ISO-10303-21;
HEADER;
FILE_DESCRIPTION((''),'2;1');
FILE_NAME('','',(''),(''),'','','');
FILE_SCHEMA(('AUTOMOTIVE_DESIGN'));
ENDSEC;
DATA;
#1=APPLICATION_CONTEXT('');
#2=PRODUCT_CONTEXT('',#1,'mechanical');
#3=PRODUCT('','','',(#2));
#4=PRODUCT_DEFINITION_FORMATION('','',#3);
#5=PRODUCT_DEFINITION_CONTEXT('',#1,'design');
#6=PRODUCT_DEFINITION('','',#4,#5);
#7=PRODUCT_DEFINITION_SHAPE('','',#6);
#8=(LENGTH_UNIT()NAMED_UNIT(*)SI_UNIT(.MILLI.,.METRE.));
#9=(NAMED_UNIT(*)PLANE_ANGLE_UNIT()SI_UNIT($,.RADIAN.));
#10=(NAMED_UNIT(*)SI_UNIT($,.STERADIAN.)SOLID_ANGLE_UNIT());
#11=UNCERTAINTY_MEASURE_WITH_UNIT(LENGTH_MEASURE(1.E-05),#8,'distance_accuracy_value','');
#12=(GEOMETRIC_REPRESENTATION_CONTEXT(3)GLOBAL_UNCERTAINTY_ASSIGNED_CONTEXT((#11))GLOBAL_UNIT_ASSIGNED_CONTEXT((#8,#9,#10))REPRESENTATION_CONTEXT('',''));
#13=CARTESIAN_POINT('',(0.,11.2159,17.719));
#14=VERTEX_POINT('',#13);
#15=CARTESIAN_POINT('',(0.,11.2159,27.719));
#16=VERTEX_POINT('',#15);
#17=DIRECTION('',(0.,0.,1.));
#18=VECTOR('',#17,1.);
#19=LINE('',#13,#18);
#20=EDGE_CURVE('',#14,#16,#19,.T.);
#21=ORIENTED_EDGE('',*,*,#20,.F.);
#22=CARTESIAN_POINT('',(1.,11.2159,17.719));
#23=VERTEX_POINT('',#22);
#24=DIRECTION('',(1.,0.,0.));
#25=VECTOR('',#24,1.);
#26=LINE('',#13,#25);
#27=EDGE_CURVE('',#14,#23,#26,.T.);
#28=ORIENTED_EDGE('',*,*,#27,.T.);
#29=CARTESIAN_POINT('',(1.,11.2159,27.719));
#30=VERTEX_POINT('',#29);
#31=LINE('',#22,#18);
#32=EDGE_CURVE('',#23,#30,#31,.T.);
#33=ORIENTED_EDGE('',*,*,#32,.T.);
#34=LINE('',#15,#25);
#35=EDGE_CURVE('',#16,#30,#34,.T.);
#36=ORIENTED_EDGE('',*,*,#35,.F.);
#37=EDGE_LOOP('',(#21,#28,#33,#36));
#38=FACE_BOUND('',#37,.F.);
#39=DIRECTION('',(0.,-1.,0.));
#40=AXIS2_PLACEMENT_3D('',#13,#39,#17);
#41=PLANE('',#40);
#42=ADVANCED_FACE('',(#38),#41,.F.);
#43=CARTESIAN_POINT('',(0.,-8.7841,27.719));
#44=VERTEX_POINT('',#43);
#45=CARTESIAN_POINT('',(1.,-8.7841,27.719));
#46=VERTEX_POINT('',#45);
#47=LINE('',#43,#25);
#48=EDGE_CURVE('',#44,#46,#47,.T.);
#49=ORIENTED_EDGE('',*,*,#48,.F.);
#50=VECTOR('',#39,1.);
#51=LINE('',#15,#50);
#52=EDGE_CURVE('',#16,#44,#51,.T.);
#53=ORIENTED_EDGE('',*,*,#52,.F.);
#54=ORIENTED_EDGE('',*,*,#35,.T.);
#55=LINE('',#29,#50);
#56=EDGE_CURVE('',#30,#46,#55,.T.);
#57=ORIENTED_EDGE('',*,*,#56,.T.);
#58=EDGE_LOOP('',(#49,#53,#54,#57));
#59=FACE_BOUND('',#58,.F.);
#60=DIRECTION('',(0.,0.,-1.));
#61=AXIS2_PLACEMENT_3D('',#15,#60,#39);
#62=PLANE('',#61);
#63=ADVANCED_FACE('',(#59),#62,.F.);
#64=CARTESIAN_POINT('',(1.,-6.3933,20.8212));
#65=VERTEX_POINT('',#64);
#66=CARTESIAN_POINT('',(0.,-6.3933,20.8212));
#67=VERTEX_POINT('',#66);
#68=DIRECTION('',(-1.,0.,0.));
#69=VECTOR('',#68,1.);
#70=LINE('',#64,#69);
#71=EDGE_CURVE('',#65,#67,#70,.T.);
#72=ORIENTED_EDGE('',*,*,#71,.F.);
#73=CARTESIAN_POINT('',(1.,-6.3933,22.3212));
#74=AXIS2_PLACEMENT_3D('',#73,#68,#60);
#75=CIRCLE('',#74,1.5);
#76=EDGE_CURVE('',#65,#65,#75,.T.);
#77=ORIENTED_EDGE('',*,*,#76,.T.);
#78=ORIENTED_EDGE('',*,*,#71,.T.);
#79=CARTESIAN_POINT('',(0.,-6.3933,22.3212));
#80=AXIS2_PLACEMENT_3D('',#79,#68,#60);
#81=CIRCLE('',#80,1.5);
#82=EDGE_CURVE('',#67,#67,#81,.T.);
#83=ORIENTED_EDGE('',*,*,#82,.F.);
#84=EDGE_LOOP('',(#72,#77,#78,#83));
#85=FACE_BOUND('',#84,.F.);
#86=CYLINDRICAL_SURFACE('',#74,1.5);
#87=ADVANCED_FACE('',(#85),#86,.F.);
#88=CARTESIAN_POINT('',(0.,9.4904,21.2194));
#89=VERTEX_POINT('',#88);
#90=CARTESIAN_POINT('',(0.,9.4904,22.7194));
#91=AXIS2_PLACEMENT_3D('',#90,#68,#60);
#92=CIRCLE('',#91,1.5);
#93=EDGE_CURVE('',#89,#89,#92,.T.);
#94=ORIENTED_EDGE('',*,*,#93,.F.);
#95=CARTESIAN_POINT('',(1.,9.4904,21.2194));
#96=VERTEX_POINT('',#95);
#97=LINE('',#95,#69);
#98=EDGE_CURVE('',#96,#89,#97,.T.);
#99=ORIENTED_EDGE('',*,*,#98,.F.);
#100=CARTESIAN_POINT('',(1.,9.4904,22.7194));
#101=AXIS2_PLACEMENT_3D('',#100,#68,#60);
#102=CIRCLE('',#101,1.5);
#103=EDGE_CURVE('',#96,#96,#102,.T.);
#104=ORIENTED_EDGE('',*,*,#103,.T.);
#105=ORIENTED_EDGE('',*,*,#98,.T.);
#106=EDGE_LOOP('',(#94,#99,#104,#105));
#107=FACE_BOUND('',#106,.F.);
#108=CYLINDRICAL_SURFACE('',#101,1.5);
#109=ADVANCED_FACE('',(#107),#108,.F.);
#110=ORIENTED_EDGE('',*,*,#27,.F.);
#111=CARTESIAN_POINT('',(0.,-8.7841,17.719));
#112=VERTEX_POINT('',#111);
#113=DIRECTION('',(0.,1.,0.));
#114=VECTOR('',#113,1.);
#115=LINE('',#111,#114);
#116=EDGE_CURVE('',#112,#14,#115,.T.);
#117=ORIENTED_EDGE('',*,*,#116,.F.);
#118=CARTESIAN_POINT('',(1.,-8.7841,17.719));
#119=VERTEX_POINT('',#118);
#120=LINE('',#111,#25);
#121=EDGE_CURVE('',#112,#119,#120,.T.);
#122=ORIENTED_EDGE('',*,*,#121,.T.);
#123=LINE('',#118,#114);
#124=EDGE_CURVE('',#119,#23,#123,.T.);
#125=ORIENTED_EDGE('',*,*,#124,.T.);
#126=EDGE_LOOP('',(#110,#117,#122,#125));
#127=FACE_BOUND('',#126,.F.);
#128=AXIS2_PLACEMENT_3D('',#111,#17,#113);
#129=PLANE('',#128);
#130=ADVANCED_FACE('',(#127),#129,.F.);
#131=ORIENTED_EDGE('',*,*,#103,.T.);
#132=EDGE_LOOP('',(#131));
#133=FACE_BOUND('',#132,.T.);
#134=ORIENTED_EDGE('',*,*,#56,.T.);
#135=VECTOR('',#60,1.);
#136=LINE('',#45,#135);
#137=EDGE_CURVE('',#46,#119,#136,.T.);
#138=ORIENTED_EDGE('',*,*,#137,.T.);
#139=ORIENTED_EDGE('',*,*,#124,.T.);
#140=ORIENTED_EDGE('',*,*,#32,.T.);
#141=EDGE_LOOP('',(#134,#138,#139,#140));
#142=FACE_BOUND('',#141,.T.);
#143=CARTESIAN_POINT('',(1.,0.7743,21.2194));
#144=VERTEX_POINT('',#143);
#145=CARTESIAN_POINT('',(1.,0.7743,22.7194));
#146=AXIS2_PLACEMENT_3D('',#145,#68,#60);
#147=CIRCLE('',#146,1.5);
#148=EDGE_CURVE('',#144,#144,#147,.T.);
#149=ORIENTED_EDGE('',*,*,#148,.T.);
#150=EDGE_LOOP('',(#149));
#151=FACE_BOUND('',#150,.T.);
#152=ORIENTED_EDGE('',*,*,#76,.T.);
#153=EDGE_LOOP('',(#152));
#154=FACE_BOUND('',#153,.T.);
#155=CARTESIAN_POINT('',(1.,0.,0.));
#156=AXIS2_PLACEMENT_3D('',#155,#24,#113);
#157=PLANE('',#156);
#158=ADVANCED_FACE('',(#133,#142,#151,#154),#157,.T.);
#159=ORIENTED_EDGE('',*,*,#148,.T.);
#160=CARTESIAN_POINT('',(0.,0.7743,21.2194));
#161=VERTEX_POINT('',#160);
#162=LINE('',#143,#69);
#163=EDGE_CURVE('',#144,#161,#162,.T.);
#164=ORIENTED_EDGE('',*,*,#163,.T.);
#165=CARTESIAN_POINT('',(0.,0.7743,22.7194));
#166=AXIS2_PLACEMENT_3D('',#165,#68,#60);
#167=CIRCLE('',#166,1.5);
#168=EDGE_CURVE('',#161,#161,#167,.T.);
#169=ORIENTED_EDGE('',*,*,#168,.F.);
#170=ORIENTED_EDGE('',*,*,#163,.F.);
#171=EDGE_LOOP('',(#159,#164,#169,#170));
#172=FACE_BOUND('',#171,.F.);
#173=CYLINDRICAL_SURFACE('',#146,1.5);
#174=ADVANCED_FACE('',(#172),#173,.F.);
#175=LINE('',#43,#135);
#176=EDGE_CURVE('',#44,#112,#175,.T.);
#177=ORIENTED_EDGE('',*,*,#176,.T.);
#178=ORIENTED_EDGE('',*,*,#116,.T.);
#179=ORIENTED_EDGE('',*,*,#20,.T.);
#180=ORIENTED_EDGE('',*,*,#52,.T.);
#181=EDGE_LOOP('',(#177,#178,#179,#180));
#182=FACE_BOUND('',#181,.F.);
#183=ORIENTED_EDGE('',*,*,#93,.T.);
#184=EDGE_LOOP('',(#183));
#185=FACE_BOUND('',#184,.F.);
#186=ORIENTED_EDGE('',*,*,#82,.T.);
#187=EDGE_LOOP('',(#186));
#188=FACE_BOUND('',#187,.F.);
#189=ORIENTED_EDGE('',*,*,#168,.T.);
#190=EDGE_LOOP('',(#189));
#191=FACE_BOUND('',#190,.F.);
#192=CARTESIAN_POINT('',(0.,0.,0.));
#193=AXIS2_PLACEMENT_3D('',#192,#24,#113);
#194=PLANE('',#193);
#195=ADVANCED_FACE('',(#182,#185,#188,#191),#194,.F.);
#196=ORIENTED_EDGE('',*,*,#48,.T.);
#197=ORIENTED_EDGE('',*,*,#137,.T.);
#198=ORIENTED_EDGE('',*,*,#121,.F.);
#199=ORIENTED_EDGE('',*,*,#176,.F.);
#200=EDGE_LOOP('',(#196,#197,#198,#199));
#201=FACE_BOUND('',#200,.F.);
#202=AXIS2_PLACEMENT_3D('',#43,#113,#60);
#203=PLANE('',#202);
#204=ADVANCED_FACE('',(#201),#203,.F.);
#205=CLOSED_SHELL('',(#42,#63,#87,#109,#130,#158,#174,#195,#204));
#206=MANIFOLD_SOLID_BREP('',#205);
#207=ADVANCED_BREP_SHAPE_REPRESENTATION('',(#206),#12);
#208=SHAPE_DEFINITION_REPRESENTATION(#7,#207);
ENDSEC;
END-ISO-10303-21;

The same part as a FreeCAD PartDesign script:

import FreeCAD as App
import Part
import Sketcher
Q = App.Units.Quantity

doc = App.newDocument("Part")
body = doc.addObject("PartDesign::Body", "Body")

sketch1 = doc.addObject("Sketcher::SketchObject", "Sketch")
body.addObject(sketch1)
sketch1.AttachmentSupport = (doc.YZ_Plane, [""])
sketch1.MapMode = "FlatFace"
sketch1.addGeometry(Part.LineSegment(App.Vector(11.2159, 17.719, 0), App.Vector(11.2159, 27.719, 0)), False)
sketch1.addGeometry(Part.LineSegment(App.Vector(11.2159, 27.719, 0), App.Vector(-8.7841, 27.719, 0)), False)
sketch1.addGeometry(Part.LineSegment(App.Vector(-8.7841, 27.719, 0), App.Vector(-8.7841, 17.719, 0)), False)
sketch1.addGeometry(Part.LineSegment(App.Vector(-8.7841, 17.719, 0), App.Vector(11.2159, 17.719, 0)), False)
sketch1.addConstraint(Sketcher.Constraint("Coincident", 0, 2, 1, 1))
sketch1.addConstraint(Sketcher.Constraint("Coincident", 1, 2, 2, 1))
sketch1.addConstraint(Sketcher.Constraint("Coincident", 2, 2, 3, 1))
sketch1.addConstraint(Sketcher.Constraint("Coincident", 3, 2, 0, 1))
sketch1.addConstraint(Sketcher.Constraint("Vertical", 0))
sketch1.addConstraint(Sketcher.Constraint("Horizontal", 1))
sketch1.addConstraint(Sketcher.Constraint("Vertical", 2))
sketch1.addConstraint(Sketcher.Constraint("Horizontal", 3))
sketch1.addConstraint(Sketcher.Constraint("DistanceX", 1, 2, 1, 1, Q("20 mm")))
sketch1.addConstraint(Sketcher.Constraint("DistanceY", 0, 1, 0, 2, Q("10 mm")))
sketch1.addConstraint(Sketcher.Constraint("DistanceX", -1, 1, 0, 2, Q("11.216 mm")))
sketch1.addConstraint(Sketcher.Constraint("DistanceY", -1, 1, 0, 2, Q("27.719 mm")))
pad1 = doc.addObject("PartDesign::Pad", "Pad")
body.addObject(pad1)
pad1.Profile = sketch1
pad1.Length = 1

sketch2 = doc.addObject("Sketcher::SketchObject", "Sketch001")
body.addObject(sketch2)
sketch2.AttachmentSupport = (doc.YZ_Plane, [""])
sketch2.MapMode = "FlatFace"
sketch2.AttachmentOffset = App.Placement(App.Vector(0, 0, 1), App.Rotation())
sketch2.addGeometry(Part.Circle(App.Vector(9.4904, 22.7194, 0), App.Vector(0, 0, 1), 1.5), False)
sketch2.addGeometry(Part.Circle(App.Vector(-6.3933, 22.3212, 0), App.Vector(0, 0, 1), 1.5), False)
sketch2.addGeometry(Part.Circle(App.Vector(0.7743, 22.7194, 0), App.Vector(0, 0, 1), 1.5), False)
sketch2.addConstraint(Sketcher.Constraint("Equal", 0, 1))
sketch2.addConstraint(Sketcher.Constraint("Equal", 1, 2))
sketch2.addConstraint(Sketcher.Constraint("Horizontal", 0, 3, 2, 3))
sketch2.addConstraint(Sketcher.Constraint("Diameter", 0, Q("3 mm")))
sketch2.addConstraint(Sketcher.Constraint("DistanceX", 2, 3, 0, 3, Q("8.716 mm")))
sketch2.addConstraint(Sketcher.Constraint("DistanceX", -1, 1, 0, 3, Q("9.4904 mm")))
sketch2.addConstraint(Sketcher.Constraint("DistanceY", -1, 1, 0, 3, Q("22.7194 mm")))
sketch2.addConstraint(Sketcher.Constraint("DistanceX", 1, 3, -1, 1, Q("6.3933 mm")))
sketch2.addConstraint(Sketcher.Constraint("DistanceY", -1, 1, 1, 3, Q("22.3212 mm")))
doc.recompute()
hole = doc.addObject("PartDesign::Hole", "Hole")
body.addObject(hole)
hole.Profile = sketch2
hole.ThreadType = "None"
hole.Diameter = 3
hole.DepthType = "ThroughAll"

doc.recompute()
